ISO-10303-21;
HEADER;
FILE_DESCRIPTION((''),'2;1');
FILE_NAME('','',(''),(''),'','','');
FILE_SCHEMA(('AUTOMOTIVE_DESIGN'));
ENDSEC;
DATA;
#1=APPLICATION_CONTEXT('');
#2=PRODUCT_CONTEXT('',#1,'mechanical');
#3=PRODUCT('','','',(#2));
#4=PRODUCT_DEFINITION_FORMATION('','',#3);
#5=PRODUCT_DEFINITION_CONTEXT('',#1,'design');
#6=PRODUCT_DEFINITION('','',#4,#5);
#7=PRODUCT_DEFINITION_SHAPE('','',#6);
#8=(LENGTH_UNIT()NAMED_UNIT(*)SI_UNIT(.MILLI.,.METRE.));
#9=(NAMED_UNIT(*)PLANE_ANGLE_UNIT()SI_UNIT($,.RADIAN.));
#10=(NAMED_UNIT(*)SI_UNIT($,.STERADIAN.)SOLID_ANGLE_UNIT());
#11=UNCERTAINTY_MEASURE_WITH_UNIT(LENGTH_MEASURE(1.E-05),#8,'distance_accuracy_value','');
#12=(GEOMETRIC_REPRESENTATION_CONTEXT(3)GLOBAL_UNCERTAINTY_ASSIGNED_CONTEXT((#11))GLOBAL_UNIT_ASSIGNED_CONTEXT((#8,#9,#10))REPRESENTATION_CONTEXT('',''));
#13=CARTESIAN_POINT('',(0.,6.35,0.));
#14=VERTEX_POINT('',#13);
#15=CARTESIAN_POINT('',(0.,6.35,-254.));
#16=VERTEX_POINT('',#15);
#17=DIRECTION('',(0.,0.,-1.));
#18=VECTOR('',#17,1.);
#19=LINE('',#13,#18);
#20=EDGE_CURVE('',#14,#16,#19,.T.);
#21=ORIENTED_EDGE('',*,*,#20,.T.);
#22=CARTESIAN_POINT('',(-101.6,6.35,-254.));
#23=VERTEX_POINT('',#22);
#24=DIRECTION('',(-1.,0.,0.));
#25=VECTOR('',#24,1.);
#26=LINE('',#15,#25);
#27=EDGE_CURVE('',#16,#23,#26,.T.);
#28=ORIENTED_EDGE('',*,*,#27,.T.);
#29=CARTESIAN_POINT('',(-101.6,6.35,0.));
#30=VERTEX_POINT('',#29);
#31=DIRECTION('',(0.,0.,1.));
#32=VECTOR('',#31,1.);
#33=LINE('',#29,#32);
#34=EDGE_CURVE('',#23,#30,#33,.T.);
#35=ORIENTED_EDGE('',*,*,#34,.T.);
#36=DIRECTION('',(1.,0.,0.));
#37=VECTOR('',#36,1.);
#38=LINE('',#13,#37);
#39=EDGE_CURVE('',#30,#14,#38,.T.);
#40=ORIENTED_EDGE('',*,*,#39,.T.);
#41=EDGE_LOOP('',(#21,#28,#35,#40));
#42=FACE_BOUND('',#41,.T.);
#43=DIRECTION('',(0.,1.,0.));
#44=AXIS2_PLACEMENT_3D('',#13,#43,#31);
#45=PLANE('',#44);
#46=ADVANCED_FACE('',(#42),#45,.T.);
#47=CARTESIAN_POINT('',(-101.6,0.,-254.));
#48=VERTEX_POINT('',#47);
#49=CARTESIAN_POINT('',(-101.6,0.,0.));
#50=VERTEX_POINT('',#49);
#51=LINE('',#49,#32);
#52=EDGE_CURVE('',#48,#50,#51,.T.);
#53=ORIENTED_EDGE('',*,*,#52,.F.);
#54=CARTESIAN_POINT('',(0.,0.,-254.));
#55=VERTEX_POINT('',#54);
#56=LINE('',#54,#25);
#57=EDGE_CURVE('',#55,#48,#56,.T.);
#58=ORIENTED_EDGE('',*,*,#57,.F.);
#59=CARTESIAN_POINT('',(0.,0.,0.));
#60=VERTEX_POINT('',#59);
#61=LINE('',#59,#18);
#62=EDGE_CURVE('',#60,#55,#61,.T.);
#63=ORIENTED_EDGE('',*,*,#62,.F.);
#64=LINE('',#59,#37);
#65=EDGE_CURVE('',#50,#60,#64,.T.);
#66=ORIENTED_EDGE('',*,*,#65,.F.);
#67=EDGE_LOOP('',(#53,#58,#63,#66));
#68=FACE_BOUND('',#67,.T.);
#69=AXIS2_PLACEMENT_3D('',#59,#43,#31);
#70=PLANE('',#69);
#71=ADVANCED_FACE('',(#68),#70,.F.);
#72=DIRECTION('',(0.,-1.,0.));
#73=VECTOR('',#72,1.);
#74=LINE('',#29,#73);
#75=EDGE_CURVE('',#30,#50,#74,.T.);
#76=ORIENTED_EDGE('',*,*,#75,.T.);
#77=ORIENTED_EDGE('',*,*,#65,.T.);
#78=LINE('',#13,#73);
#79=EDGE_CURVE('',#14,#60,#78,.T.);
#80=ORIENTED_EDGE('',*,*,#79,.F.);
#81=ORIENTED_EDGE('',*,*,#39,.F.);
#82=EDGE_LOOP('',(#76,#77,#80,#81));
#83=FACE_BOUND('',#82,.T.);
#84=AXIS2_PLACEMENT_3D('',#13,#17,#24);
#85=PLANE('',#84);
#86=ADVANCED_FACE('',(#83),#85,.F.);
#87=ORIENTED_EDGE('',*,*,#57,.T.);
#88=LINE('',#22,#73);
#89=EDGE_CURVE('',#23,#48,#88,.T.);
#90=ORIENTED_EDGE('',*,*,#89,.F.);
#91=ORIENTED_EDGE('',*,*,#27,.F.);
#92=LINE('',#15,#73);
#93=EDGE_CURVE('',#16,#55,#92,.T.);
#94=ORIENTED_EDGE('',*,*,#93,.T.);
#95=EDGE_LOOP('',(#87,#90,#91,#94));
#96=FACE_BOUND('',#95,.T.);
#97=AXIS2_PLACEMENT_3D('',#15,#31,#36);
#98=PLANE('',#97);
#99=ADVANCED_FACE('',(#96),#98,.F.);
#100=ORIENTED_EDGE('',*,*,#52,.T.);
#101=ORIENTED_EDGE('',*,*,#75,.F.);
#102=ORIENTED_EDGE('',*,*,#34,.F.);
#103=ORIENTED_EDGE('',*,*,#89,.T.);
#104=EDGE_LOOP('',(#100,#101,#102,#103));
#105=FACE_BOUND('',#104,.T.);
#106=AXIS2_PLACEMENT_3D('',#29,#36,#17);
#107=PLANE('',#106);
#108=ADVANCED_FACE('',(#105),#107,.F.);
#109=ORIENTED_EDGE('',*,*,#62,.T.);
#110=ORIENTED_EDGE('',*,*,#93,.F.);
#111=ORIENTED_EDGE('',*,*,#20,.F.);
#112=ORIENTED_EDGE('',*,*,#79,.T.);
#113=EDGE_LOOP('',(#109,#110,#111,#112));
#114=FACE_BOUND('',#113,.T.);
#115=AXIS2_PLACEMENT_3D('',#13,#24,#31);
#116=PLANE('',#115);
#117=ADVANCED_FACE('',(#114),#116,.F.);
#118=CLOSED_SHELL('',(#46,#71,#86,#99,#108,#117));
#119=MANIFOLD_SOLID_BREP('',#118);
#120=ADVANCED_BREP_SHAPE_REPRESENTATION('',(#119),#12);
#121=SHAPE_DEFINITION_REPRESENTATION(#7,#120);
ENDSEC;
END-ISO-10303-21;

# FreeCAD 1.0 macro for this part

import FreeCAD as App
import Part
import Sketcher
from FreeCAD import Vector
Q = App.Units.Quantity


def add_polygon(sketch, points):
    """Adds a closed chain of lines whose ends are joined by coincident constraints."""
    first, n = sketch.GeometryCount, len(points)
    for a, b in zip(points, points[1:] + points[:1]):
        sketch.addGeometry(Part.LineSegment(App.Vector(*a, 0), App.Vector(*b, 0)), False)
    for i in range(n):
        sketch.addConstraint(Sketcher.Constraint("Coincident", first + i, 2, first + (i + 1) % n, 1))

doc = App.newDocument("Part")
body = doc.addObject("PartDesign::Body", "Body")

sketch1 = body.newObject("Sketcher::SketchObject", "Sketch")
sketch1.AttachmentSupport = (doc.getObject("XZ_Plane"), [""])
sketch1.MapMode = "FlatFace"
add_polygon(sketch1, [(-102, -254), (-102, 0), (0, 0), (0, -254)])
sketch1.addConstraint(Sketcher.Constraint("Vertical", 0))
sketch1.addConstraint(Sketcher.Constraint("Horizontal", 1))
sketch1.addConstraint(Sketcher.Constraint("Vertical", 2))
sketch1.addConstraint(Sketcher.Constraint("Horizontal", 3))
sketch1.addConstraint(Sketcher.Constraint("Coincident", 1, 2, -1, 1))
sketch1.addConstraint(Sketcher.Constraint("DistanceX", 1, 1, 1, 2, Q("4 in")))
sketch1.addConstraint(Sketcher.Constraint("DistanceY", 0, 1, 0, 2, Q("10 in")))
pad1 = body.newObject("PartDesign::Pad", "Pad")
pad1.Profile = sketch1
pad1.Length = Q("0.25 in")
pad1.Reversed = True

doc.recompute()
